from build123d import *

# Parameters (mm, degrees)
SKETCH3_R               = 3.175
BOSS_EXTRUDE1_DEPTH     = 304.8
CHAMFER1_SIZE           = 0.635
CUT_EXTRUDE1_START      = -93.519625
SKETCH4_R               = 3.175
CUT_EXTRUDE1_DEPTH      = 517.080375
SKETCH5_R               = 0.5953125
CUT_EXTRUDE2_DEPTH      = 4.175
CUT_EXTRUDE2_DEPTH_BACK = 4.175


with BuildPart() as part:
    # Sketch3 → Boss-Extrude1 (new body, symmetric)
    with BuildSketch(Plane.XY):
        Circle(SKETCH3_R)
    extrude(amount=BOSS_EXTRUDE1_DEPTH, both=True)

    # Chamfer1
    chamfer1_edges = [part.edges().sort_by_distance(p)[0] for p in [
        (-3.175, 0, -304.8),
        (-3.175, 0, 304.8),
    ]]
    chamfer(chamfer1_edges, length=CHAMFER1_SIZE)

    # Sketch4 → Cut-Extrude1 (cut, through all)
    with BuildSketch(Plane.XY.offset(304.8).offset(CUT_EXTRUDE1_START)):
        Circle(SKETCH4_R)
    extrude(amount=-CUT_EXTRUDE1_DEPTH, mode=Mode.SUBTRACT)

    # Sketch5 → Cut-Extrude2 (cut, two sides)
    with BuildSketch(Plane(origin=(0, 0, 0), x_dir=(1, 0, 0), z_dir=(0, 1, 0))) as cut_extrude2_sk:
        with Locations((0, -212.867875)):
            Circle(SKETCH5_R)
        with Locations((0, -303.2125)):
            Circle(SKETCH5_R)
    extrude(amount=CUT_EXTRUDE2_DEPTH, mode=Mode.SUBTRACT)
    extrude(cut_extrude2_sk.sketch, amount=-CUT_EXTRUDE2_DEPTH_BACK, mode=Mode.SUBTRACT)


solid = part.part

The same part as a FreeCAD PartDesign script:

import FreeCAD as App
import Part
import Sketcher
from FreeCAD import Vector
Q = App.Units.Quantity


def edges_at(feature, points):
    """Names of the edges that pass closest to the given points."""
    edges = feature.Shape.Edges
    near = lambda p: min(range(len(edges)), key=lambda i: edges[i].distToShape(Part.Vertex(*p))[0])
    return sorted({f"Edge{near(p) + 1}" for p in points})

doc = App.newDocument("Part")
body = doc.addObject("PartDesign::Body", "Body")

# Sketch on XY plane
sketch1 = body.newObject("Sketcher::SketchObject", "Sketch")
sketch1.AttachmentSupport = (doc.getObject("XY_Plane"), [""])
sketch1.MapMode = "FlatFace"
sketch1.addGeometry(Part.Circle(Vector(0, 0, 0), Vector(0, 0, 1), 3.2), False)
sketch1.addConstraint([
    Sketcher.Constraint("Coincident", 0, 3, -1, 1),
    Sketcher.Constraint("Diameter", 0, Q("0.25 in")),
])
pad1 = body.newObject("PartDesign::Pad", "Pad")
pad1.Profile = sketch1
pad1.Length = Q("24 in")
pad1.Midplane = True
doc.recompute()

chamfer = body.newObject("PartDesign::Chamfer", "Chamfer")
chamfer.Base = (pad1, edges_at(pad1, [(-3.175, 0, -304.8), (-3.175, 0, 304.8)]))
chamfer.Size = Q("0.025 in")

# Sketch on XY plane
sketch2 = body.newObject("Sketcher::SketchObject", "Sketch001")
sketch2.AttachmentSupport = (doc.getObject("XY_Plane"), [""])
sketch2.MapMode = "FlatFace"
sketch2.AttachmentOffset = App.Placement(Vector(0, 0, 211.280375), App.Rotation())
sketch2.addGeometry(Part.Circle(Vector(0, 0, 0), Vector(0, 0, 1), 3.2), False)
sketch2.addConstraint([
    Sketcher.Constraint("Coincident", 0, 3, -1, 1),
    Sketcher.Constraint("Diameter", 0, Q("0.25 in")),
])
pocket1 = body.newObject("PartDesign::Pocket", "Pocket")
pocket1.Profile = sketch2
pocket1.Type = "ThroughAll"

# Sketch on XZ plane
sketch3 = body.newObject("Sketcher::SketchObject", "Sketch002")
sketch3.AttachmentSupport = (doc.getObject("XZ_Plane"), [""])
sketch3.MapMode = "FlatFace"
sketch3.addGeometry([
    Part.Circle(Vector(0, 212.9, 0), Vector(0, 0, 1), 0.6),
    Part.Circle(Vector(0, 303.2, 0), Vector(0, 0, 1), 0.6),
], False)
sketch3.addConstraint([
    Sketcher.Constraint("Equal", 0, 1),
    Sketcher.Constraint("PointOnObject", 0, 3, -2),
    Sketcher.Constraint("PointOnObject", 1, 3, -2),
    Sketcher.Constraint("Diameter", 0, Q("0.046875 in")),
    Sketcher.Constraint("DistanceY", -1, 1, 1, 3, Q("11.9375 in")),
    Sketcher.Constraint("DistanceY", -1, 1, 0, 3, 212.867875),
])
pocket2 = body.newObject("PartDesign::Pocket", "Pocket001")
pocket2.Profile = sketch3
pocket2.Type = "ThroughAll"
pocket2.Midplane = True

doc.recompute()
